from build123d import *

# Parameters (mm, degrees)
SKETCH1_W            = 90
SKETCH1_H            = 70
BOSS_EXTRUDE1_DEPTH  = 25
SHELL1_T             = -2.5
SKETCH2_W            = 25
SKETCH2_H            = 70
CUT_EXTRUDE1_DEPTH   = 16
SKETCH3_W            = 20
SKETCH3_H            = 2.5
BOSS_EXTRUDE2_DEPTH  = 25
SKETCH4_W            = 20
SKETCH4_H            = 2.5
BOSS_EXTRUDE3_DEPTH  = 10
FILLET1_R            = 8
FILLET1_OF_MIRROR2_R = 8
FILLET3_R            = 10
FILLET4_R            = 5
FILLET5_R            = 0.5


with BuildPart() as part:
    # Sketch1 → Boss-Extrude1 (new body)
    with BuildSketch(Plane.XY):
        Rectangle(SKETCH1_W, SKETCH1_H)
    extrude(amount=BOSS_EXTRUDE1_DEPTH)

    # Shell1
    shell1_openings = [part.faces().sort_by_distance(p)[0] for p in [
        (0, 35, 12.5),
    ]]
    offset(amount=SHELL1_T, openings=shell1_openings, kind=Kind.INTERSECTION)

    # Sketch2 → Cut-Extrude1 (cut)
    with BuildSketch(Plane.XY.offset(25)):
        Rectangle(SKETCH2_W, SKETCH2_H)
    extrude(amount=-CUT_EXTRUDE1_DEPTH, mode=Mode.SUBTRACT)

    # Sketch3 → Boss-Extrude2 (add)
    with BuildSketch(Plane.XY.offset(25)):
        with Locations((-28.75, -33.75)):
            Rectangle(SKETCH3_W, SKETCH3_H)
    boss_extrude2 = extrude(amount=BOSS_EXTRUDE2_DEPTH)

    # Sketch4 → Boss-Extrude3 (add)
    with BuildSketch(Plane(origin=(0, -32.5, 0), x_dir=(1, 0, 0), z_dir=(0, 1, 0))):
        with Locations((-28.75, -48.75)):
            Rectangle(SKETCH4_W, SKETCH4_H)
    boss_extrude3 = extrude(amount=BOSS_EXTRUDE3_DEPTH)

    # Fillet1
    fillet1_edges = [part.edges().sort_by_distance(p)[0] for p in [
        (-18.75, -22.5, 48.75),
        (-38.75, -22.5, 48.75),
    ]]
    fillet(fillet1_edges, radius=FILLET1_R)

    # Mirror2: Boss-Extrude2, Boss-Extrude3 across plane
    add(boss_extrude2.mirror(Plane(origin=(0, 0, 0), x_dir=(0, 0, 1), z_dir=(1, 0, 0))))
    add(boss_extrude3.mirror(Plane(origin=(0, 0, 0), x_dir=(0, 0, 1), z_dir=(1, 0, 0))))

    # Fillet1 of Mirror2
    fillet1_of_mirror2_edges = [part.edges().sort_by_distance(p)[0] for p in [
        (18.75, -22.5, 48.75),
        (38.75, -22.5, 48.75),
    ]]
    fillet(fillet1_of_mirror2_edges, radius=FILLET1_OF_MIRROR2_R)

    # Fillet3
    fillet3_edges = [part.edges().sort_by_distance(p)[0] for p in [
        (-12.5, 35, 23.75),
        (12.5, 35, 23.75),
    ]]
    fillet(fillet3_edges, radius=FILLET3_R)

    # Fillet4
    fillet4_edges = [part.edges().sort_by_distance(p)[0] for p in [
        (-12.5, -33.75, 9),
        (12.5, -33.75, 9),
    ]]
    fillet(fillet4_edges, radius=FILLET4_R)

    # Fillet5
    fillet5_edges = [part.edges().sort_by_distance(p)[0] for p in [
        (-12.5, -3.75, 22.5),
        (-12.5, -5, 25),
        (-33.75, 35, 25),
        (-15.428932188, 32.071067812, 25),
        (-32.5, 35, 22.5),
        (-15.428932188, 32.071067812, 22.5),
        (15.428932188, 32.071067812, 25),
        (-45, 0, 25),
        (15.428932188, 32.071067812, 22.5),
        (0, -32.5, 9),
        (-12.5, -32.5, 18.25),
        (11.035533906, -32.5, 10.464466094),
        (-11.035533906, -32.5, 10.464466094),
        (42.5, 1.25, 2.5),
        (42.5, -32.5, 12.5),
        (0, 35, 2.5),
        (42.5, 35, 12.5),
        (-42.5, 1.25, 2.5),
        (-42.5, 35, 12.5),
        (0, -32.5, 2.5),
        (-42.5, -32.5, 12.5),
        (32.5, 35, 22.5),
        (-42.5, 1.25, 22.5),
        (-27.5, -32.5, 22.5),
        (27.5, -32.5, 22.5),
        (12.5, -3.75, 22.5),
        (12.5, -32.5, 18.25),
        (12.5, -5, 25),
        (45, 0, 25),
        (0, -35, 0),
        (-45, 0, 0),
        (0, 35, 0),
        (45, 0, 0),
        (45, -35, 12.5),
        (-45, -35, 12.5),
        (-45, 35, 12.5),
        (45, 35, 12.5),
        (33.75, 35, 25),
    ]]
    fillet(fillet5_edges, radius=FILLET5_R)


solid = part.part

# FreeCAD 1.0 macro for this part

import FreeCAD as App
import Part
import Sketcher
Q = App.Units.Quantity


def edges_at(feature, points):
    """Names of the edges that pass closest to the given points."""
    edges = feature.Shape.Edges
    near = lambda p: min(range(len(edges)), key=lambda i: edges[i].distToShape(Part.Vertex(*p))[0])
    return sorted({f"Edge{near(p) + 1}" for p in points})


def faces_at(feature, points):
    """Names of the faces that lie closest to the given points."""
    faces = feature.Shape.Faces
    near = lambda p: min(range(len(faces)), key=lambda i: faces[i].distToShape(Part.Vertex(*p))[0])
    return sorted({f"Face{near(p) + 1}" for p in points})

doc = App.newDocument("Part")
body = doc.addObject("PartDesign::Body", "Body")

sketch1 = body.newObject("Sketcher::SketchObject", "Sketch")
sketch1.AttachmentSupport = (doc.getObject("XY_Plane"), [""])
sketch1.MapMode = "FlatFace"
sketch1.addGeometry(Part.LineSegment(App.Vector(-45, 35, 0), App.Vector(-45, -35, 0)), False)
sketch1.addGeometry(Part.LineSegment(App.Vector(-45, -35, 0), App.Vector(45, -35, 0)), False)
sketch1.addGeometry(Part.LineSegment(App.Vector(45, -35, 0), App.Vector(45, 35, 0)), False)
sketch1.addGeometry(Part.LineSegment(App.Vector(45, 35, 0), App.Vector(-45, 35, 0)), False)
sketch1.addConstraint(Sketcher.Constraint("Coincident", 0, 2, 1, 1))
sketch1.addConstraint(Sketcher.Constraint("Coincident", 1, 2, 2, 1))
sketch1.addConstraint(Sketcher.Constraint("Coincident", 2, 2, 3, 1))
sketch1.addConstraint(Sketcher.Constraint("Coincident", 3, 2, 0, 1))
sketch1.addConstraint(Sketcher.Constraint("Vertical", 0))
sketch1.addConstraint(Sketcher.Constraint("Horizontal", 1))
sketch1.addConstraint(Sketcher.Constraint("Vertical", 2))
sketch1.addConstraint(Sketcher.Constraint("Horizontal", 3))
sketch1.addConstraint(Sketcher.Constraint("Symmetric", 0, 2, 2, 2, -1, 1))
sketch1.addConstraint(Sketcher.Constraint("DistanceX", 1, 1, 1, 2, Q("90 mm")))
sketch1.addConstraint(Sketcher.Constraint("DistanceY", 0, 2, 0, 1, Q("70 mm")))
pad1 = body.newObject("PartDesign::Pad", "Pad")
pad1.Profile = sketch1
pad1.Length = 25
doc.recompute()

thickness = body.newObject("PartDesign::Thickness", "Thickness")
thickness.Base = (pad1, faces_at(pad1, [(0, 35, 12.5)]))
thickness.Value = 2.5
thickness.Reversed = True
thickness.Join = "Intersection"

sketch2 = body.newObject("Sketcher::SketchObject", "Sketch001")
sketch2.AttachmentSupport = (doc.getObject("XY_Plane"), [""])
sketch2.MapMode = "FlatFace"
sketch2.AttachmentOffset = App.Placement(App.Vector(0, 0, 25), App.Rotation())
sketch2.addGeometry(Part.LineSegment(App.Vector(-12, 35, 0), App.Vector(-12, -35, 0)), False)
sketch2.addGeometry(Part.LineSegment(App.Vector(-12, -35, 0), App.Vector(12, -35, 0)), False)
sketch2.addGeometry(Part.LineSegment(App.Vector(12, -35, 0), App.Vector(12, 35, 0)), False)
sketch2.addGeometry(Part.LineSegment(App.Vector(12, 35, 0), App.Vector(-12, 35, 0)), False)
sketch2.addConstraint(Sketcher.Constraint("Coincident", 0, 2, 1, 1))
sketch2.addConstraint(Sketcher.Constraint("Coincident", 1, 2, 2, 1))
sketch2.addConstraint(Sketcher.Constraint("Coincident", 2, 2, 3, 1))
sketch2.addConstraint(Sketcher.Constraint("Coincident", 3, 2, 0, 1))
sketch2.addConstraint(Sketcher.Constraint("Vertical", 0))
sketch2.addConstraint(Sketcher.Constraint("Horizontal", 1))
sketch2.addConstraint(Sketcher.Constraint("Vertical", 2))
sketch2.addConstraint(Sketcher.Constraint("Horizontal", 3))
sketch2.addConstraint(Sketcher.Constraint("Symmetric", 0, 2, 2, 2, -1, 1))
sketch2.addConstraint(Sketcher.Constraint("DistanceX", 1, 1, 1, 2, Q("25 mm")))
sketch2.addConstraint(Sketcher.Constraint("DistanceY", 0, 2, 0, 1, Q("70 mm")))
pocket1 = body.newObject("PartDesign::Pocket", "Pocket")
pocket1.Profile = sketch2
pocket1.Length = 16

sketch3 = body.newObject("Sketcher::SketchObject", "Sketch002")
sketch3.AttachmentSupport = (doc.getObject("XY_Plane"), [""])
sketch3.MapMode = "FlatFace"
sketch3.AttachmentOffset = App.Placement(App.Vector(0, 0, 25), App.Rotation())
sketch3.addGeometry(Part.LineSegment(App.Vector(-38.8, -32.5, 0), App.Vector(-38.8, -35, 0)), False)
sketch3.addGeometry(Part.LineSegment(App.Vector(-38.8, -35, 0), App.Vector(-18.8, -35, 0)), False)
sketch3.addGeometry(Part.LineSegment(App.Vector(-18.8, -35, 0), App.Vector(-18.8, -32.5, 0)), False)
sketch3.addGeometry(Part.LineSegment(App.Vector(-18.8, -32.5, 0), App.Vector(-38.8, -32.5, 0)), False)
sketch3.addConstraint(Sketcher.Constraint("Coincident", 0, 2, 1, 1))
sketch3.addConstraint(Sketcher.Constraint("Coincident", 1, 2, 2, 1))
sketch3.addConstraint(Sketcher.Constraint("Coincident", 2, 2, 3, 1))
sketch3.addConstraint(Sketcher.Constraint("Coincident", 3, 2, 0, 1))
sketch3.addConstraint(Sketcher.Constraint("Vertical", 0))
sketch3.addConstraint(Sketcher.Constraint("Horizontal", 1))
sketch3.addConstraint(Sketcher.Constraint("Vertical", 2))
sketch3.addConstraint(Sketcher.Constraint("Horizontal", 3))
sketch3.addConstraint(Sketcher.Constraint("DistanceX", 1, 1, 1, 2, Q("20 mm")))
sketch3.addConstraint(Sketcher.Constraint("DistanceY", 0, 2, 0, 1, Q("2.5 mm")))
sketch3.addConstraint(Sketcher.Constraint("DistanceY", 0, 2, -1, 1, Q("35 mm")))
sketch3.addConstraint(Sketcher.Constraint("DistanceX", 0, 2, -1, 1, Q("38.75 mm")))
pad2 = body.newObject("PartDesign::Pad", "Pad001")
pad2.Profile = sketch3
pad2.Length = 25

sketch4 = body.newObject("Sketcher::SketchObject", "Sketch003")
sketch4.AttachmentSupport = (doc.getObject("XZ_Plane"), [""])
sketch4.MapMode = "FlatFace"
sketch4.AttachmentOffset = App.Placement(App.Vector(0, 0, 32.5), App.Rotation())
sketch4.addGeometry(Part.LineSegment(App.Vector(-38.8, 47.5, 0), App.Vector(-38.8, 50, 0)), False)
sketch4.addGeometry(Part.LineSegment(App.Vector(-38.8, 50, 0), App.Vector(-18.8, 50, 0)), False)
sketch4.addGeometry(Part.LineSegment(App.Vector(-18.8, 50, 0), App.Vector(-18.8, 47.5, 0)), False)
sketch4.addGeometry(Part.LineSegment(App.Vector(-18.8, 47.5, 0), App.Vector(-38.8, 47.5, 0)), False)
sketch4.addConstraint(Sketcher.Constraint("Coincident", 0, 2, 1, 1))
sketch4.addConstraint(Sketcher.Constraint("Coincident", 1, 2, 2, 1))
sketch4.addConstraint(Sketcher.Constraint("Coincident", 2, 2, 3, 1))
sketch4.addConstraint(Sketcher.Constraint("Coincident", 3, 2, 0, 1))
sketch4.addConstraint(Sketcher.Constraint("Vertical", 0))
sketch4.addConstraint(Sketcher.Constraint("Horizontal", 1))
sketch4.addConstraint(Sketcher.Constraint("Vertical", 2))
sketch4.addConstraint(Sketcher.Constraint("Horizontal", 3))
sketch4.addConstraint(Sketcher.Constraint("DistanceX", 1, 1, 1, 2, Q("20 mm")))
sketch4.addConstraint(Sketcher.Constraint("DistanceY", 0, 1, 0, 2, Q("2.5 mm")))
sketch4.addConstraint(Sketcher.Constraint("DistanceY", -1, 1, 0, 2, Q("50 mm")))
sketch4.addConstraint(Sketcher.Constraint("DistanceX", 0, 2, -1, 1, Q("38.75 mm")))
pad3 = body.newObject("PartDesign::Pad", "Pad002")
pad3.Profile = sketch4
pad3.Length = 10
pad3.Reversed = True
doc.recompute()

fillet = body.newObject("PartDesign::Fillet", "Fillet")
fillet.Base = (pad3, edges_at(pad3, [(-18.75, -22.5, 48.75), (-38.75, -22.5, 48.75)]))
fillet.Radius = 8
doc.recompute()

mirrored = body.newObject("PartDesign::Mirrored", "Mirrored")
mirrored.Originals = [pad2, pad3]
mirrored.MirrorPlane = (doc.getObject("YZ_Plane"), [""])
body.Tip = mirrored
doc.recompute()

fillet2 = body.newObject("PartDesign::Fillet", "Fillet001")
fillet2.Base = (mirrored, edges_at(mirrored, [(18.75, -22.5, 48.75), (38.75, -22.5, 48.75)]))
fillet2.Radius = 8
doc.recompute()

fillet3 = body.newObject("PartDesign::Fillet", "Fillet002")
fillet3.Base = (fillet2, edges_at(fillet2, [(-12.5, 35, 23.75), (12.5, 35, 23.75)]))
fillet3.Radius = 10
doc.recompute()

fillet4 = body.newObject("PartDesign::Fillet", "Fillet003")
fillet4.Base = (fillet3, edges_at(fillet3, [(-12.5, -33.75, 9), (12.5, -33.75, 9)]))
fillet4.Radius = 5
doc.recompute()

fillet5 = body.newObject("PartDesign::Fillet", "Fillet004")
fillet5.Base = (fillet4, edges_at(fillet4, [
    (-12.5, -3.75, 22.5),
    (-12.5, -5, 25),
    (-33.75, 35, 25),
    (-15.429, 32.071, 25),
    (-32.5, 35, 22.5),
    (-15.429, 32.071, 22.5),
    (15.429, 32.071, 25),
    (-45, 0, 25),
    (15.429, 32.071, 22.5),
    (0, -32.5, 9),
    (-12.5, -32.5, 18.25),
    (11.036, -32.5, 10.464),
    (-11.036, -32.5, 10.464),
    (42.5, 1.25, 2.5),
    (42.5, -32.5, 12.5),
    (0, 35, 2.5),
    (42.5, 35, 12.5),
    (-42.5, 1.25, 2.5),
    (-42.5, 35, 12.5),
    (0, -32.5, 2.5),
    (-42.5, -32.5, 12.5),
    (32.5, 35, 22.5),
    (-42.5, 1.25, 22.5),
    (-27.5, -32.5, 22.5),
    (27.5, -32.5, 22.5),
    (12.5, -3.75, 22.5),
    (12.5, -32.5, 18.25),
    (12.5, -5, 25),
    (45, 0, 25),
    (0, -35, 0),
    (-45, 0, 0),
    (0, 35, 0),
    (45, 0, 0),
    (45, -35, 12.5),
    (-45, -35, 12.5),
    (-45, 35, 12.5),
    (45, 35, 12.5),
    (33.75, 35, 25),
]))
fillet5.Radius = 0.5

doc.recompute()
